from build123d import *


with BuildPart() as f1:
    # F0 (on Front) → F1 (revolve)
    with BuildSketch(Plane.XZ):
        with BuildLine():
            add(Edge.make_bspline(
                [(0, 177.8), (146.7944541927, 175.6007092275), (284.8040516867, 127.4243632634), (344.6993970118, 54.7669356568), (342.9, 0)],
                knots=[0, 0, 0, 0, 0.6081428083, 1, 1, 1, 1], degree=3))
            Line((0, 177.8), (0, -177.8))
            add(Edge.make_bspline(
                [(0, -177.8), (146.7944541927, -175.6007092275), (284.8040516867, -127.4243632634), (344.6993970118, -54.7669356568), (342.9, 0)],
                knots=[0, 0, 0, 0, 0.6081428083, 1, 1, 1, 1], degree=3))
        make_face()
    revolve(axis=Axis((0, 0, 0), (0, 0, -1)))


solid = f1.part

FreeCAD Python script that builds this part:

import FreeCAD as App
import Part
import Sketcher

doc = App.newDocument("Part")
body = doc.addObject("PartDesign::Body", "Body")

sketch1 = body.newObject("Sketcher::SketchObject", "Sketch")
sketch1.AttachmentSupport = (doc.getObject("XZ_Plane"), [""])
sketch1.MapMode = "FlatFace"
sketch1.addGeometry(Part.BSplineCurve([App.Vector(0, 177.8, 0), App.Vector(146.794454, 175.600709, 0), App.Vector(284.804052, 127.424363, 0), App.Vector(344.699397, 54.766936, 0), App.Vector(342.9, 0, 0)], [4, 1, 4], [0, 0.608142808, 1], False, 3, [1, 1, 1, 1, 1], False), False)
sketch1.addGeometry(Part.LineSegment(App.Vector(0, 177.8, 0), App.Vector(0, -177.8, 0)), False)
sketch1.addGeometry(Part.BSplineCurve([App.Vector(0, -177.8, 0), App.Vector(146.794454, -175.600709, 0), App.Vector(284.804052, -127.424363, 0), App.Vector(344.699397, -54.766936, 0), App.Vector(342.9, 0, 0)], [4, 1, 4], [0, 0.608142808, 1], False, 3, [1, 1, 1, 1, 1], False), False)
sketch1.addConstraint(Sketcher.Constraint("Block", 0))
sketch1.addConstraint(Sketcher.Constraint("Block", 2))
sketch1.addConstraint(Sketcher.Constraint("Coincident", 0, 1, 1, 1))
sketch1.addConstraint(Sketcher.Constraint("Coincident", 1, 2, 2, 1))
revolution = body.newObject("PartDesign::Revolution", "Revolution")
revolution.Profile = sketch1
revolution.ReferenceAxis = (sketch1, ["V_Axis"])
revolution.Angle = 360

doc.recompute()
